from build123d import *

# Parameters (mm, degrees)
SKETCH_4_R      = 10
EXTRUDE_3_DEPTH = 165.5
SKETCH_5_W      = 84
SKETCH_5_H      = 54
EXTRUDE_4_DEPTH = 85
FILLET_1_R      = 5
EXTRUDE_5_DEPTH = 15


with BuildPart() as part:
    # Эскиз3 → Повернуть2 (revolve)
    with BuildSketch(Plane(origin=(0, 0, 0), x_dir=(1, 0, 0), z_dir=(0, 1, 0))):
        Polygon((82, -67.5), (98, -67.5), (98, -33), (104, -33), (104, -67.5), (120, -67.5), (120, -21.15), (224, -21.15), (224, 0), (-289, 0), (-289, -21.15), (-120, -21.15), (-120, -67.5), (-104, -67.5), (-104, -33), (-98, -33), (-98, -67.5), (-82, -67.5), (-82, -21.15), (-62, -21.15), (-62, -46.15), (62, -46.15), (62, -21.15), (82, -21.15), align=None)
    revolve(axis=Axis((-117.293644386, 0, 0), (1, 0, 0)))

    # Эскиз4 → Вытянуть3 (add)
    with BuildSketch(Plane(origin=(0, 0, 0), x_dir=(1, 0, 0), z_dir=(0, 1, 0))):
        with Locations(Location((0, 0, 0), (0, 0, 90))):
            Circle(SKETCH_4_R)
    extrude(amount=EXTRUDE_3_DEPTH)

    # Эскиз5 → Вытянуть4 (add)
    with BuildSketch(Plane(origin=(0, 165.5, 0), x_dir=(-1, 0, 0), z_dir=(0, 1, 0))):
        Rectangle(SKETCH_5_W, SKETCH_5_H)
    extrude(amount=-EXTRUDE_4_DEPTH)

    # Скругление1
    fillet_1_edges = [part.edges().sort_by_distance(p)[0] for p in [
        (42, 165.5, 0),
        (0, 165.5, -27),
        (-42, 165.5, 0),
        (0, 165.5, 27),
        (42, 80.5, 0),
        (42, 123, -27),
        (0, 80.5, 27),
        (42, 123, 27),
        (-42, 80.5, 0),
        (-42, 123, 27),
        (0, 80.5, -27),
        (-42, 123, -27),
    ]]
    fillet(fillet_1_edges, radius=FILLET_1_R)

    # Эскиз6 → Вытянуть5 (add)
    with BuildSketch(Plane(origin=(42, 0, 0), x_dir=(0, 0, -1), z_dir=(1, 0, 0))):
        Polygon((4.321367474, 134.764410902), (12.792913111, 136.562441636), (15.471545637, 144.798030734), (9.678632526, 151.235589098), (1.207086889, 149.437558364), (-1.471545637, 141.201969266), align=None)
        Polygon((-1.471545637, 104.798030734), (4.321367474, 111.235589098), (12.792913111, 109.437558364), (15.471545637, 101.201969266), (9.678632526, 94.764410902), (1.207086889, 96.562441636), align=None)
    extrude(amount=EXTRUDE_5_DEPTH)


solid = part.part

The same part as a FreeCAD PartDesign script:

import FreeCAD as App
import Part
import Sketcher
from FreeCAD import Vector
Q = App.Units.Quantity


def edges_at(feature, points):
    """Names of the edges that pass closest to the given points."""
    edges = feature.Shape.Edges
    near = lambda p: min(range(len(edges)), key=lambda i: edges[i].distToShape(Part.Vertex(*p))[0])
    return sorted({f"Edge{near(p) + 1}" for p in points})


def add_polygon(sketch, points):
    """Adds a closed chain of lines whose ends are joined by coincident constraints."""
    first, n = sketch.GeometryCount, len(points)
    for a, b in zip(points, points[1:] + points[:1]):
        sketch.addGeometry(Part.LineSegment(App.Vector(*a, 0), App.Vector(*b, 0)), False)
    for i in range(n):
        sketch.addConstraint(Sketcher.Constraint("Coincident", first + i, 2, first + (i + 1) % n, 1))

doc = App.newDocument("Part")
body = doc.addObject("PartDesign::Body", "Body")

# Sketch on XZ plane
sketch1 = body.newObject("Sketcher::SketchObject", "Sketch")
sketch1.AttachmentSupport = (doc.getObject("XZ_Plane"), [""])
sketch1.MapMode = "FlatFace"
add_polygon(sketch1, [(82, 68), (98, 68), (98, 33), (104, 33), (104, 68), (120, 68), (120, 21), (224, 21), (224, 0), (-289, 0), (-289, 21), (-120, 21), (-120, 68), (-104, 68), (-104, 33), (-98, 33), (-98, 68), (-82, 68), (-82, 21), (-62, 21), (-62, 46), (62, 46), (62, 21), (82, 21)])  # lines 0-23
sketch1.addConstraint(Sketcher.Constraint("Horizontal", 0))
sketch1.addConstraint(Sketcher.Constraint("Vertical", 1))
sketch1.addConstraint(Sketcher.Constraint("Horizontal", 2))
sketch1.addConstraint(Sketcher.Constraint("Vertical", 3))
sketch1.addConstraint(Sketcher.Constraint("Horizontal", 4))
sketch1.addConstraint(Sketcher.Constraint("Vertical", 5))
sketch1.addConstraint(Sketcher.Constraint("Horizontal", 6))
sketch1.addConstraint(Sketcher.Constraint("Vertical", 7))
sketch1.addConstraint(Sketcher.Constraint("Horizontal", 8))
sketch1.addConstraint(Sketcher.Constraint("Vertical", 9))
sketch1.addConstraint(Sketcher.Constraint("Horizontal", 10))
sketch1.addConstraint(Sketcher.Constraint("Vertical", 11))
sketch1.addConstraint(Sketcher.Constraint("Horizontal", 12))
sketch1.addConstraint(Sketcher.Constraint("Vertical", 13))
sketch1.addConstraint(Sketcher.Constraint("Horizontal", 14))
sketch1.addConstraint(Sketcher.Constraint("Vertical", 15))
sketch1.addConstraint(Sketcher.Constraint("Horizontal", 16))
sketch1.addConstraint(Sketcher.Constraint("Vertical", 17))
sketch1.addConstraint(Sketcher.Constraint("Horizontal", 18))
sketch1.addConstraint(Sketcher.Constraint("Vertical", 19))
sketch1.addConstraint(Sketcher.Constraint("Horizontal", 20))
sketch1.addConstraint(Sketcher.Constraint("Vertical", 21))
sketch1.addConstraint(Sketcher.Constraint("Horizontal", 22))
sketch1.addConstraint(Sketcher.Constraint("Vertical", 23))
sketch1.addConstraint(Sketcher.Constraint("Symmetric", 5, 2, 10, 2, -2))
sketch1.addConstraint(Sketcher.Constraint("Symmetric", 3, 2, 12, 2, -2))
sketch1.addConstraint(Sketcher.Constraint("Symmetric", 1, 2, 14, 2, -2))
sketch1.addConstraint(Sketcher.Constraint("Symmetric", 18, 2, 21, 2, -2))
sketch1.addConstraint(Sketcher.Constraint("Symmetric", 16, 2, 23, 2, -2))
sketch1.addConstraint(Sketcher.Constraint("PointOnObject", 7, 2, -1))
sketch1.addConstraint(Sketcher.Constraint("Horizontal", 0, 2, 3, 2))
sketch1.addConstraint(Sketcher.Constraint("Horizontal", 10, 2, 17, 2))
sketch1.addConstraint(Sketcher.Constraint("Equal", 0, 4))
sketch1.addConstraint(Sketcher.Constraint("DistanceX", 0, 1, 0, 2, Q("16 mm")))
sketch1.addConstraint(Sketcher.Constraint("DistanceX", 2, 1, 2, 2, Q("6 mm")))
sketch1.addConstraint(Sketcher.Constraint("DistanceX", 6, 1, 6, 2, Q("104 mm")))
sketch1.addConstraint(Sketcher.Constraint("DistanceX", 8, 2, 8, 1, Q("513 mm")))
sketch1.addConstraint(Sketcher.Constraint("DistanceX", 10, 1, 10, 2, Q("169 mm")))
sketch1.addConstraint(Sketcher.Constraint("DistanceX", 18, 1, 18, 2, Q("20 mm")))
sketch1.addConstraint(Sketcher.Constraint("DistanceY", 19, 1, 19, 2, Q("25 mm")))
sketch1.addConstraint(Sketcher.Constraint("DistanceY", 1, 2, 1, 1, Q("34.5 mm")))
sketch1.addConstraint(Sketcher.Constraint("DistanceY", -1, 1, 1, 2, Q("33 mm")))
sketch1.addConstraint(Sketcher.Constraint("DistanceY", 5, 2, 5, 1, Q("46.35 mm")))
revolution = body.newObject("PartDesign::Revolution", "Revolution")
revolution.Profile = sketch1
revolution.ReferenceAxis = (sketch1, ["H_Axis"])
revolution.Angle = 360

# Sketch on XZ plane
sketch2 = body.newObject("Sketcher::SketchObject", "Sketch001")
sketch2.AttachmentSupport = (doc.getObject("XZ_Plane"), [""])
sketch2.MapMode = "FlatFace"
sketch2.addGeometry(Part.Circle(Vector(0, 0, 0), Vector(0, 0, 1), 10), False)
sketch2.addConstraint(Sketcher.Constraint("Coincident", 0, 3, -1, 1))
sketch2.addConstraint(Sketcher.Constraint("Diameter", 0, Q("20 mm")))
pad1 = body.newObject("PartDesign::Pad", "Pad")
pad1.Profile = sketch2
pad1.Length = 165.5
pad1.Reversed = True

# Sketch on XZ plane
sketch3 = body.newObject("Sketcher::SketchObject", "Sketch002")
sketch3.AttachmentSupport = (doc.getObject("XZ_Plane"), [""])
sketch3.MapMode = "FlatFace"
sketch3.AttachmentOffset = App.Placement(Vector(0, 0, -165.5), App.Rotation())
add_polygon(sketch3, [(42, 27), (42, -27), (-42, -27), (-42, 27)])  # lines 0-3
sketch3.addConstraint(Sketcher.Constraint("Vertical", 0))
sketch3.addConstraint(Sketcher.Constraint("Horizontal", 1))
sketch3.addConstraint(Sketcher.Constraint("Vertical", 2))
sketch3.addConstraint(Sketcher.Constraint("Horizontal", 3))
sketch3.addConstraint(Sketcher.Constraint("Symmetric", 0, 2, 2, 2, -1, 1))
sketch3.addConstraint(Sketcher.Constraint("DistanceX", 1, 2, 1, 1, Q("84 mm")))
sketch3.addConstraint(Sketcher.Constraint("DistanceY", 0, 2, 0, 1, Q("54 mm")))
pad2 = body.newObject("PartDesign::Pad", "Pad001")
pad2.Profile = sketch3
pad2.Length = 85
doc.recompute()

fillet = body.newObject("PartDesign::Fillet", "Fillet")
fillet.Base = (pad2, edges_at(pad2, [
    (42, 165.5, 0),
    (0, 165.5, -27),
    (-42, 165.5, 0),
    (0, 165.5, 27),
    (42, 80.5, 0),
    (42, 123, -27),
    (0, 80.5, 27),
    (42, 123, 27),
    (-42, 80.5, 0),
    (-42, 123, 27),
    (0, 80.5, -27),
    (-42, 123, -27),
]))
fillet.Radius = 5

# Sketch on YZ plane
sketch4 = body.newObject("Sketcher::SketchObject", "Sketch003")
sketch4.AttachmentSupport = (doc.getObject("YZ_Plane"), [""])
sketch4.MapMode = "FlatFace"
sketch4.AttachmentOffset = App.Placement(Vector(0, 0, 42), App.Rotation())
add_polygon(sketch4, [(135, -4), (137, -13), (145, -15), (151, -10), (149, -1), (141, 1)])  # lines 0-5
add_polygon(sketch4, [(111, -4), (105, 1), (97, -1), (95, -10), (101, -15), (109, -13)])  # lines 6-11
sketch4.addConstraint(Sketcher.Constraint("Parallel", 0, 3))
sketch4.addConstraint(Sketcher.Constraint("Parallel", 1, 4))
sketch4.addConstraint(Sketcher.Constraint("Parallel", 2, 5))
sketch4.addConstraint(Sketcher.Constraint("Parallel", 6, 9))
sketch4.addConstraint(Sketcher.Constraint("Parallel", 7, 10))
sketch4.addConstraint(Sketcher.Constraint("Parallel", 8, 11))
sketch4.addConstraint(Sketcher.Constraint("Horizontal", 4, 2, 6, 2))
sketch4.addConstraint(Sketcher.Constraint("Horizontal", 3, 2, 7, 2))
sketch4.addConstraint(Sketcher.Constraint("Horizontal", 2, 2, 8, 2))
sketch4.addConstraint(Sketcher.Constraint("Horizontal", 1, 2, 9, 2))
sketch4.addConstraint(Sketcher.Constraint("Horizontal", 0, 2, 10, 2))
sketch4.addConstraint(Sketcher.Constraint("Equal", 0, 1))
sketch4.addConstraint(Sketcher.Constraint("Equal", 1, 2))
sketch4.addConstraint(Sketcher.Constraint("Equal", 2, 3))
sketch4.addConstraint(Sketcher.Constraint("Equal", 5, 6))
sketch4.addConstraint(Sketcher.Constraint("Equal", 6, 7))
sketch4.addConstraint(Sketcher.Constraint("Equal", 7, 8))
sketch4.addConstraint(Sketcher.Constraint("DistanceX", 6, 2, 1, 2, Q("40 mm")))
sketch4.addConstraint(Sketcher.Constraint("DistanceX", -1, 1, 0, 2, Q("136.562442 mm")))
sketch4.addConstraint(Sketcher.Constraint("DistanceX", -1, 1, 1, 2, Q("144.798031 mm")))
sketch4.addConstraint(Sketcher.Constraint("DistanceX", -1, 1, 2, 2, Q("151.235589 mm")))
sketch4.addConstraint(Sketcher.Constraint("DistanceX", -1, 1, 3, 2, Q("149.437558 mm")))
sketch4.addConstraint(Sketcher.Constraint("DistanceY", 0, 2, 2, 2, Q("3.114281 mm")))
sketch4.addConstraint(Sketcher.Constraint("DistanceY", 0, 2, -1, 1, Q("12.792913 mm")))
pad3 = body.newObject("PartDesign::Pad", "Pad002")
pad3.Profile = sketch4
pad3.Length = 15

doc.recompute()
